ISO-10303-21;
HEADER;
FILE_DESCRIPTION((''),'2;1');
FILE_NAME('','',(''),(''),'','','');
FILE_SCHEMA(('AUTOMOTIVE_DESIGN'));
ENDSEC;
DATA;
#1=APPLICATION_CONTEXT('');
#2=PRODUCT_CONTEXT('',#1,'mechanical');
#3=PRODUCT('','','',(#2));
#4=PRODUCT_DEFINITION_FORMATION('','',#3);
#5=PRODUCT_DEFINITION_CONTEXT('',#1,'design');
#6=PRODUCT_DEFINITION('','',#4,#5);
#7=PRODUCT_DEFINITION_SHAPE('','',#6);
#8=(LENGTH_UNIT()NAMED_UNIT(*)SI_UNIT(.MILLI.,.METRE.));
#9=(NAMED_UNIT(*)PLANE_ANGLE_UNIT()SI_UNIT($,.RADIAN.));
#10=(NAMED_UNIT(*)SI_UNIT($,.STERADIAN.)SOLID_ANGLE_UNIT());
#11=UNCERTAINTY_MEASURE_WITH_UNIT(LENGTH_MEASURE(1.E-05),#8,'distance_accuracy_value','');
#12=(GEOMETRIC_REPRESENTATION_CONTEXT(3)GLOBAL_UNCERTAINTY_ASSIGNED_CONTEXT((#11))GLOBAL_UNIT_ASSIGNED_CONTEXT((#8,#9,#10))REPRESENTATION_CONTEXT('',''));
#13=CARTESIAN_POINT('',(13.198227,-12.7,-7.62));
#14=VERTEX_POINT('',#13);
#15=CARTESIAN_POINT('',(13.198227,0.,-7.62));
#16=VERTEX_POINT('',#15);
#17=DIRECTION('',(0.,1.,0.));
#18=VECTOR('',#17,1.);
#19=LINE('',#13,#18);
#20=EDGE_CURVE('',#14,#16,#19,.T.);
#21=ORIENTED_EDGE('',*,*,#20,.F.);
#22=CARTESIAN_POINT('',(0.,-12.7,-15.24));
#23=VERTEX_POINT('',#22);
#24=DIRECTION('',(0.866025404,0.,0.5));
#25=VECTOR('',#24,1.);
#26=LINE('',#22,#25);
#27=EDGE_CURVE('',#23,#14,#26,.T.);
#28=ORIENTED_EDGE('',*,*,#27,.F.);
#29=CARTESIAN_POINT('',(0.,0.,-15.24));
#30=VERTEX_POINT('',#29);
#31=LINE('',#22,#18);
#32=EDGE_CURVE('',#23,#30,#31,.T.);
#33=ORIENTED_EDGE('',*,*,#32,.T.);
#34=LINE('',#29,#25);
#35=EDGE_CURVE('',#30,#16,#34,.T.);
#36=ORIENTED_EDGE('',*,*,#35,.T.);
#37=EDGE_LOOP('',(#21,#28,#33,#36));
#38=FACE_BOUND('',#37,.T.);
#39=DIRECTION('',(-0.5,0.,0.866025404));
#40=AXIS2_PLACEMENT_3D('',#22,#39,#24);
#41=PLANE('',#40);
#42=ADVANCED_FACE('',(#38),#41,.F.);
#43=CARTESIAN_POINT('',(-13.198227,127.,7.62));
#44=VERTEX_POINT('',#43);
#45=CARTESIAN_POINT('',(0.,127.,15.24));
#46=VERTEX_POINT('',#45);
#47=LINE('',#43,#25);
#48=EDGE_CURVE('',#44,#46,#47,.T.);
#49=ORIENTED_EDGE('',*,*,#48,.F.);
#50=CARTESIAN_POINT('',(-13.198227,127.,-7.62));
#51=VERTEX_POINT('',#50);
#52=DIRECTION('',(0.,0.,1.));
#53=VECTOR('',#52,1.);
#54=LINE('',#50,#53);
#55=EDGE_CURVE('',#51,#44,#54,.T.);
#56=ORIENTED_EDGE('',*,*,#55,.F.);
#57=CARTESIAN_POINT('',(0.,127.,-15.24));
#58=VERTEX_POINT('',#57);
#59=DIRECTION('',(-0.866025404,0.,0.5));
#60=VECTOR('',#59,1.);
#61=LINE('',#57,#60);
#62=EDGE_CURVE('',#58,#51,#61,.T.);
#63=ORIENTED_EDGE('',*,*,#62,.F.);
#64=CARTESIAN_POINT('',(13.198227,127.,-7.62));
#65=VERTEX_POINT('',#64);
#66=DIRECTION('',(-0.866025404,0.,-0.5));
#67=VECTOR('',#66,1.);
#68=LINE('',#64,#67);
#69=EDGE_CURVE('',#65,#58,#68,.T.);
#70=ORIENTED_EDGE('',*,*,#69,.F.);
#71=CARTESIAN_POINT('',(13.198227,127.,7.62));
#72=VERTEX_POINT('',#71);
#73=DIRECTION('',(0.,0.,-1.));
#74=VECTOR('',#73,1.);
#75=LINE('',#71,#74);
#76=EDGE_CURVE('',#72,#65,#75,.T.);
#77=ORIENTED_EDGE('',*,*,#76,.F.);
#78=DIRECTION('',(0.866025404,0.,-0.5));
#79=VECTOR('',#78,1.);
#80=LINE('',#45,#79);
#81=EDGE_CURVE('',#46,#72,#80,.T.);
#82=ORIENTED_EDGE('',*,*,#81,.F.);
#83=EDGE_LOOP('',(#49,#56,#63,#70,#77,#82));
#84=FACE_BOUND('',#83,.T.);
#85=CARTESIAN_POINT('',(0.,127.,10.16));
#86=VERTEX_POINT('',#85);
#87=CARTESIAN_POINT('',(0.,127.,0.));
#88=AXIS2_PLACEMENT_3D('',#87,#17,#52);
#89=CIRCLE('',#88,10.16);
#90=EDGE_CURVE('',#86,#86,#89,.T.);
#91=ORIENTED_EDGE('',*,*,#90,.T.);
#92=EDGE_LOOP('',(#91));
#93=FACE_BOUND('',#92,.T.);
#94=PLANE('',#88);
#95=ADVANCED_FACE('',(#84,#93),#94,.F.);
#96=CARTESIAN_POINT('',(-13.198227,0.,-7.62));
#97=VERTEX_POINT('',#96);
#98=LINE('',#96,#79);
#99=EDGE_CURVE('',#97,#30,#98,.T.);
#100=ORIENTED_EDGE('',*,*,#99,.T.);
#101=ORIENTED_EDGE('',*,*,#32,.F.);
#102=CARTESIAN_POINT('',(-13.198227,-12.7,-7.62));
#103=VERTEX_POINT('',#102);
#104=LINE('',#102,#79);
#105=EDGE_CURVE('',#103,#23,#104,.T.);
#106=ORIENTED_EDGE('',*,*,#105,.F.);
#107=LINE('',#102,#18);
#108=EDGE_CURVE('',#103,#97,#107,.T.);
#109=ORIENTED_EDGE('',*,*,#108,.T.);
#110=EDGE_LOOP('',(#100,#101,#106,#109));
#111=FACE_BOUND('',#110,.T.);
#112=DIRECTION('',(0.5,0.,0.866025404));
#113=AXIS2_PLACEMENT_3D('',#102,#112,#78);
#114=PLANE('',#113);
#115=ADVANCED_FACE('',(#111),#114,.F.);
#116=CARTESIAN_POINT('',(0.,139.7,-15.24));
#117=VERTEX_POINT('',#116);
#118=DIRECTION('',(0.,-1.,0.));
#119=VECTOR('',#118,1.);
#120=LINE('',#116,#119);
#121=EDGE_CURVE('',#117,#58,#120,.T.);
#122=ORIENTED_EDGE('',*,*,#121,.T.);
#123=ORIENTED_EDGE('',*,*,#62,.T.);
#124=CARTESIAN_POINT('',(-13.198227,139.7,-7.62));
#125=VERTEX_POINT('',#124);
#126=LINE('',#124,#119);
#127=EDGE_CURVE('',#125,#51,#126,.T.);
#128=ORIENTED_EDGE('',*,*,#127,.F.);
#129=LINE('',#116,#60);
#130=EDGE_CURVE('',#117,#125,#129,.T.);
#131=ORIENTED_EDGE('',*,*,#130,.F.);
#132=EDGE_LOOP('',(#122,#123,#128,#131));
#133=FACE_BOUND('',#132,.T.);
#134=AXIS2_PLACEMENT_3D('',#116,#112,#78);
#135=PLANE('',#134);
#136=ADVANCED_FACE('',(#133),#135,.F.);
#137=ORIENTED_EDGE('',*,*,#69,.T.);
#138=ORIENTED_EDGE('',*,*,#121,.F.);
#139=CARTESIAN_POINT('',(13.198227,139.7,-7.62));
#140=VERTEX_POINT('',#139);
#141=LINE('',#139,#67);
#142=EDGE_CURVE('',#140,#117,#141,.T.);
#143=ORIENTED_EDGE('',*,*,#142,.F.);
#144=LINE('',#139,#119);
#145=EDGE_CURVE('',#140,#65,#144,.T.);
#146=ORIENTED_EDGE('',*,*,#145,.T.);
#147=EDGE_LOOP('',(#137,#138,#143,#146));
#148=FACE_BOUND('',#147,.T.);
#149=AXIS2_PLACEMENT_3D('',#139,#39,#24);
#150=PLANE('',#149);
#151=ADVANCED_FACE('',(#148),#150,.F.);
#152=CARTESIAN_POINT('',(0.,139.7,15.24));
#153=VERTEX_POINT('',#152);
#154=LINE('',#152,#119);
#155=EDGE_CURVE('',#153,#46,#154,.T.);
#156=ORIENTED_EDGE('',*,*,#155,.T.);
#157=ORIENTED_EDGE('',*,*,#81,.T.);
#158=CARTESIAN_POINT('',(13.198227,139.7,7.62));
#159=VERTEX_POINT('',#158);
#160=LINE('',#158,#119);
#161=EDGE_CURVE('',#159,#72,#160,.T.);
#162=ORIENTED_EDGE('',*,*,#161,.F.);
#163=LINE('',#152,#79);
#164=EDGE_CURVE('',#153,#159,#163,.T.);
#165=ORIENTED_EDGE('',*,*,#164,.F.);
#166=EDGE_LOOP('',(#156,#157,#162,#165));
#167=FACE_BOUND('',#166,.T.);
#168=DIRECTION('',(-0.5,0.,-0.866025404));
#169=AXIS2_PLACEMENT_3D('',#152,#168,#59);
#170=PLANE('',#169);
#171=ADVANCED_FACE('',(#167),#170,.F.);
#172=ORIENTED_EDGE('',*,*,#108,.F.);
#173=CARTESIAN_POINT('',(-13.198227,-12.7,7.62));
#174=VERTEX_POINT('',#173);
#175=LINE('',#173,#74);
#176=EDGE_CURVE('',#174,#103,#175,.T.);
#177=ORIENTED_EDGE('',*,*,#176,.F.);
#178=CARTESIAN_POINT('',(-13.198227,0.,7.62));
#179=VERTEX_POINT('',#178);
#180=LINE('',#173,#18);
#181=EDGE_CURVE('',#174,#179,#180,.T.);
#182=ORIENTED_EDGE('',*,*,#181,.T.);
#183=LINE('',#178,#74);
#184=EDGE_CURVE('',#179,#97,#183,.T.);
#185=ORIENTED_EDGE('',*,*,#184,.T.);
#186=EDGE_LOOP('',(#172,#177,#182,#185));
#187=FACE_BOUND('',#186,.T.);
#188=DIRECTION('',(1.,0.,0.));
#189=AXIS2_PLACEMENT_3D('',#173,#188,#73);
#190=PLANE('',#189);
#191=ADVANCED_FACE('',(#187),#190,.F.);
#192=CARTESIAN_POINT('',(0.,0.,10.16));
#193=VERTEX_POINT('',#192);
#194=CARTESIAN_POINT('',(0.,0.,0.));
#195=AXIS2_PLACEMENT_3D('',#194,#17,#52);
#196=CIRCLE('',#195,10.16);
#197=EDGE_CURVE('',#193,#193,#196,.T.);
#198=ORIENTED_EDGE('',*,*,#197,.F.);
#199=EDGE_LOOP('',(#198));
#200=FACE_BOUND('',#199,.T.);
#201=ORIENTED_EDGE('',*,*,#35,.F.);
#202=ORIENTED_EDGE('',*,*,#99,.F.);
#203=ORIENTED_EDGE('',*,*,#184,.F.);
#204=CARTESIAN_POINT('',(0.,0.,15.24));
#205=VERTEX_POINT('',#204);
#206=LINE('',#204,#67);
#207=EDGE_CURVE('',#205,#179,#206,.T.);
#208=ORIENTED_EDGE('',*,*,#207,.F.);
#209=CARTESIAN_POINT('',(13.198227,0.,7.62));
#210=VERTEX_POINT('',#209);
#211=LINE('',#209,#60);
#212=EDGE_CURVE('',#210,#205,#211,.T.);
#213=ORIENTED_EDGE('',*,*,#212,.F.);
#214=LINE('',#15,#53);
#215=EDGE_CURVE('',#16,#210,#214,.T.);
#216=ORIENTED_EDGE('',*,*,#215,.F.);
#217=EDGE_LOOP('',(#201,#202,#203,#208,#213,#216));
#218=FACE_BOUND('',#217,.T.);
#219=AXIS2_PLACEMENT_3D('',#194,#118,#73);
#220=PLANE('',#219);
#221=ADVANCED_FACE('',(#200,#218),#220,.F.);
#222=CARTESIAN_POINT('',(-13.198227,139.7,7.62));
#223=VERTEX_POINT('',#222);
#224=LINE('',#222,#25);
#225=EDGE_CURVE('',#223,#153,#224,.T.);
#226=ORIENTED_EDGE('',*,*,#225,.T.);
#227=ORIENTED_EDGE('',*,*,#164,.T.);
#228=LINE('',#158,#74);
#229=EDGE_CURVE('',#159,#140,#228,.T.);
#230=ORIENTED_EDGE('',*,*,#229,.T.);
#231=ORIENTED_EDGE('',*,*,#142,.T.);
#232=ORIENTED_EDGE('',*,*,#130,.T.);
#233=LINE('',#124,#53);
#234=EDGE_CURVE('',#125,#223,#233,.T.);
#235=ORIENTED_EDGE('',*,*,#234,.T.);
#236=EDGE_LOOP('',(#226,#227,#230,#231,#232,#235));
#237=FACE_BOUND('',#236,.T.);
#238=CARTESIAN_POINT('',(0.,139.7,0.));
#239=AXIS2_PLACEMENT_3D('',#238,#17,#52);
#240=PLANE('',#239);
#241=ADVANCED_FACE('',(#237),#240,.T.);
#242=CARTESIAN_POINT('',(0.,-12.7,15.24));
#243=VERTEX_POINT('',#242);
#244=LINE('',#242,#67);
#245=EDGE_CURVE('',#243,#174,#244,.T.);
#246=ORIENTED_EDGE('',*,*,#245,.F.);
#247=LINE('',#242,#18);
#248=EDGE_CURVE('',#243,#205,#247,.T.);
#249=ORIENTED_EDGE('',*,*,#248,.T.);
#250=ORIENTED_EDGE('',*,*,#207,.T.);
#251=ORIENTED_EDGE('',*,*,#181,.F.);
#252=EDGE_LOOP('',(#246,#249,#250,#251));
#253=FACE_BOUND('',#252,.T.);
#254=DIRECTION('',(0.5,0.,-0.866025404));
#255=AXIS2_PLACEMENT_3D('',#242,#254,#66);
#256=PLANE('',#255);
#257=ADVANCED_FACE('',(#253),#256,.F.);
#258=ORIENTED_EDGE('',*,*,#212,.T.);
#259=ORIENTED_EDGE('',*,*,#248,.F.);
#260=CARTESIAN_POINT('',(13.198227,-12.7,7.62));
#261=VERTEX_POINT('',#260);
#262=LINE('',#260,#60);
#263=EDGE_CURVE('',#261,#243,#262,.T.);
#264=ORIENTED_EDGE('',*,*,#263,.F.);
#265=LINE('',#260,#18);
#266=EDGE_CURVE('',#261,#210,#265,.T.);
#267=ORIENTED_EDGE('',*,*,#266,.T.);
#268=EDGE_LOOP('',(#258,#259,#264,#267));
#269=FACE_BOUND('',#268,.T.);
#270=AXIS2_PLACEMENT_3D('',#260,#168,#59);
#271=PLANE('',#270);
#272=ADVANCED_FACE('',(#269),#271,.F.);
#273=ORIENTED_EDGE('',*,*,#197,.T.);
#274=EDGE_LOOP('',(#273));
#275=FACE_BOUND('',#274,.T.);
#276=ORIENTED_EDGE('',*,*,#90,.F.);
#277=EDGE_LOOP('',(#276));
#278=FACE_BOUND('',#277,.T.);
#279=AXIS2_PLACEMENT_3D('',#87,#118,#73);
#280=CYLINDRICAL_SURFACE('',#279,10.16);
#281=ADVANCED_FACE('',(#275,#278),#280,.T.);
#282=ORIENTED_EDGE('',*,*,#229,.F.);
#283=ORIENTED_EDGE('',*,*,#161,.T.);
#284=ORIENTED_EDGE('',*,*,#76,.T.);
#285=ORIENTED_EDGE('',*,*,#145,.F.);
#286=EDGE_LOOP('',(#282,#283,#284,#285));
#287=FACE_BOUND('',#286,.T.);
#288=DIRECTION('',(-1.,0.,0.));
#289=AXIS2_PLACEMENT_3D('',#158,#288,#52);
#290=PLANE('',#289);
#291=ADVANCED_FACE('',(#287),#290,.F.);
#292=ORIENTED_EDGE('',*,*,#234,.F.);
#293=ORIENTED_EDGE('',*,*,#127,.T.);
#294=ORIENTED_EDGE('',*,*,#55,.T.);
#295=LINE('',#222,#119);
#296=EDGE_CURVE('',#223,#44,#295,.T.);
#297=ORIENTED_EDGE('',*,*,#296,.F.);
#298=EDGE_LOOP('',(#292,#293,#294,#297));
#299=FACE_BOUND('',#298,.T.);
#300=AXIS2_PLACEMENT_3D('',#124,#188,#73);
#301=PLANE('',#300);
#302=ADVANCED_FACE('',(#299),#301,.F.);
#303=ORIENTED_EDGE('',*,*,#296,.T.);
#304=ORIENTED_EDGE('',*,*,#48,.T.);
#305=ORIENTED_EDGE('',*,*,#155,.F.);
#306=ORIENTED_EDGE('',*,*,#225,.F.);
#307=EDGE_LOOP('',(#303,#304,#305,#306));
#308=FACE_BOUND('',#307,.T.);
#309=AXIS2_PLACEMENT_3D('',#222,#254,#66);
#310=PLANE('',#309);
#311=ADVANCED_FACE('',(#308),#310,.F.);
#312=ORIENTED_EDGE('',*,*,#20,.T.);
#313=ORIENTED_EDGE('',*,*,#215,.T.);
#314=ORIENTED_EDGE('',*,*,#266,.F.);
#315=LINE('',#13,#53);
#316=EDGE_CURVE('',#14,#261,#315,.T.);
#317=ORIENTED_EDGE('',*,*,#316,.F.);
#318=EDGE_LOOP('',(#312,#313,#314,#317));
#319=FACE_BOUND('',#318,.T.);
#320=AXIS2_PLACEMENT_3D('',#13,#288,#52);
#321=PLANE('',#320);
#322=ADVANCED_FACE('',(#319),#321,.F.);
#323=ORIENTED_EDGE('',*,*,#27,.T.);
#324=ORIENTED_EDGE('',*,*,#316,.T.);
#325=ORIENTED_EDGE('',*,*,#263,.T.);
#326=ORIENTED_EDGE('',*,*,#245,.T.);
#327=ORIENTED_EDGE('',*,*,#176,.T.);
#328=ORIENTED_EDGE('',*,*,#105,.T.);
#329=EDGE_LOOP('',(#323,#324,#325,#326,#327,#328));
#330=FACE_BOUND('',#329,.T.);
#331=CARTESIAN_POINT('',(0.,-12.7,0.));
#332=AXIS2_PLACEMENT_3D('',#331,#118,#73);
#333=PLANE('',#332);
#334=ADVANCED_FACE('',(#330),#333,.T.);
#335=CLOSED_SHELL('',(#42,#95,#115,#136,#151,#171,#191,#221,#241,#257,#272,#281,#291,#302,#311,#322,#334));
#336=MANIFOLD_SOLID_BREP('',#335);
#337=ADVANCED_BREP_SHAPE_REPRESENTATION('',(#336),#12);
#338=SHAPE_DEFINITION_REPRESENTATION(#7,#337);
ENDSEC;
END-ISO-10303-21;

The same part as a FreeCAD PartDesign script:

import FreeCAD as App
import Part
import Sketcher
from FreeCAD import Vector
Q = App.Units.Quantity

doc = App.newDocument("Part")
body = doc.addObject("PartDesign::Body", "Body")

# Sketch on XZ plane
sketch1 = body.newObject("Sketcher::SketchObject", "Sketch")
sketch1.AttachmentSupport = (doc.getObject("XZ_Plane"), [""])
sketch1.MapMode = "FlatFace"
sketch1.addGeometry(Part.Circle(Vector(0, 0, 0), Vector(0, 0, 1), 10), False)
sketch1.addConstraint(Sketcher.Constraint("Coincident", 0, 3, -1, 1))
sketch1.addConstraint(Sketcher.Constraint("Diameter", 0, Q("0.8 in")))
pad1 = body.newObject("PartDesign::Pad", "Pad")
pad1.Profile = sketch1
pad1.Length = Q("5 in")
pad1.Reversed = True

# Sketch on XZ plane
sketch2 = body.newObject("Sketcher::SketchObject", "Sketch001")
sketch2.AttachmentSupport = (doc.getObject("XZ_Plane"), [""])
sketch2.MapMode = "FlatFace"
sketch2.AttachmentOffset = App.Placement(Vector(0, 0, -5 * 25.4), App.Rotation())
sketch2.addGeometry(Part.LineSegment(Vector(0, -15, 0), Vector(-13, -8, 0)), False)
sketch2.addGeometry(Part.LineSegment(Vector(-13, -8, 0), Vector(-13, 8, 0)), False)
sketch2.addGeometry(Part.LineSegment(Vector(-13, 8, 0), Vector(0, 15, 0)), False)
sketch2.addGeometry(Part.LineSegment(Vector(0, 15, 0), Vector(13, 8, 0)), False)
sketch2.addGeometry(Part.LineSegment(Vector(13, 8, 0), Vector(13, -8, 0)), False)
sketch2.addGeometry(Part.LineSegment(Vector(13, -8, 0), Vector(0, -15, 0)), False)
sketch2.addConstraint(Sketcher.Constraint("Coincident", 0, 2, 1, 1))
sketch2.addConstraint(Sketcher.Constraint("Coincident", 1, 2, 2, 1))
sketch2.addConstraint(Sketcher.Constraint("Coincident", 2, 2, 3, 1))
sketch2.addConstraint(Sketcher.Constraint("Coincident", 3, 2, 4, 1))
sketch2.addConstraint(Sketcher.Constraint("Coincident", 4, 2, 5, 1))
sketch2.addConstraint(Sketcher.Constraint("Coincident", 5, 2, 0, 1))
sketch2.addConstraint(Sketcher.Constraint("Vertical", 1))
sketch2.addConstraint(Sketcher.Constraint("Vertical", 4))
sketch2.addConstraint(Sketcher.Constraint("Symmetric", 0, 2, 3, 2, -1, 1))
sketch2.addConstraint(Sketcher.Constraint("Symmetric", 2, 2, 5, 2, -1, 1))
sketch2.addConstraint(Sketcher.Constraint("PointOnObject", 2, 2, -2))
sketch2.addConstraint(Sketcher.Constraint("Parallel", 2, 5))
sketch2.addConstraint(Sketcher.Constraint("Horizontal", 1, 2, 3, 2))
sketch2.addConstraint(Sketcher.Constraint("DistanceY", 1, 1, 1, 2, Q("0.6 in")))
sketch2.addConstraint(Sketcher.Constraint("Angle", 0, Q("150 deg")))
sketch2.addConstraint(Sketcher.Constraint("Distance", 0, Q("0.6 in")))
pad2 = body.newObject("PartDesign::Pad", "Pad001")
pad2.Profile = sketch2
pad2.Length = Q("0.5 in")
pad2.Reversed = True

# Sketch on XZ plane
sketch3 = body.newObject("Sketcher::SketchObject", "Sketch002")
sketch3.AttachmentSupport = (doc.getObject("XZ_Plane"), [""])
sketch3.MapMode = "FlatFace"
sketch3.addGeometry(Part.LineSegment(Vector(-13, 8, 0), Vector(-13, -8, 0)), False)
sketch3.addGeometry(Part.LineSegment(Vector(-13, -8, 0), Vector(0, -15, 0)), False)
sketch3.addGeometry(Part.LineSegment(Vector(0, -15, 0), Vector(13, -8, 0)), False)
sketch3.addGeometry(Part.LineSegment(Vector(13, -8, 0), Vector(13, 8, 0)), False)
sketch3.addGeometry(Part.LineSegment(Vector(13, 8, 0), Vector(0, 15, 0)), False)
sketch3.addGeometry(Part.LineSegment(Vector(0, 15, 0), Vector(-13, 8, 0)), False)
sketch3.addConstraint(Sketcher.Constraint("Coincident", 0, 2, 1, 1))
sketch3.addConstraint(Sketcher.Constraint("Coincident", 1, 2, 2, 1))
sketch3.addConstraint(Sketcher.Constraint("Coincident", 2, 2, 3, 1))
sketch3.addConstraint(Sketcher.Constraint("Coincident", 3, 2, 4, 1))
sketch3.addConstraint(Sketcher.Constraint("Coincident", 4, 2, 5, 1))
sketch3.addConstraint(Sketcher.Constraint("Coincident", 5, 2, 0, 1))
sketch3.addConstraint(Sketcher.Constraint("Vertical", 0))
sketch3.addConstraint(Sketcher.Constraint("Vertical", 3))
sketch3.addConstraint(Sketcher.Constraint("Symmetric", 0, 2, 3, 2, -1, 1))
sketch3.addConstraint(Sketcher.Constraint("Symmetric", 1, 2, 4, 2, -1, 1))
sketch3.addConstraint(Sketcher.Constraint("PointOnObject", 1, 2, -2))
sketch3.addConstraint(Sketcher.Constraint("Parallel", 2, 5))
sketch3.addConstraint(Sketcher.Constraint("Horizontal", 0, 2, 2, 2))
sketch3.addConstraint(Sketcher.Constraint("DistanceY", 0, 2, 0, 1, Q("0.6 in")))
sketch3.addConstraint(Sketcher.Constraint("Angle", 1, Q("-30 deg")))
sketch3.addConstraint(Sketcher.Constraint("Distance", 1, Q("0.6 in")))
pad3 = body.newObject("PartDesign::Pad", "Pad002")
pad3.Profile = sketch3
pad3.Length = Q("0.5 in")

doc.recompute()
